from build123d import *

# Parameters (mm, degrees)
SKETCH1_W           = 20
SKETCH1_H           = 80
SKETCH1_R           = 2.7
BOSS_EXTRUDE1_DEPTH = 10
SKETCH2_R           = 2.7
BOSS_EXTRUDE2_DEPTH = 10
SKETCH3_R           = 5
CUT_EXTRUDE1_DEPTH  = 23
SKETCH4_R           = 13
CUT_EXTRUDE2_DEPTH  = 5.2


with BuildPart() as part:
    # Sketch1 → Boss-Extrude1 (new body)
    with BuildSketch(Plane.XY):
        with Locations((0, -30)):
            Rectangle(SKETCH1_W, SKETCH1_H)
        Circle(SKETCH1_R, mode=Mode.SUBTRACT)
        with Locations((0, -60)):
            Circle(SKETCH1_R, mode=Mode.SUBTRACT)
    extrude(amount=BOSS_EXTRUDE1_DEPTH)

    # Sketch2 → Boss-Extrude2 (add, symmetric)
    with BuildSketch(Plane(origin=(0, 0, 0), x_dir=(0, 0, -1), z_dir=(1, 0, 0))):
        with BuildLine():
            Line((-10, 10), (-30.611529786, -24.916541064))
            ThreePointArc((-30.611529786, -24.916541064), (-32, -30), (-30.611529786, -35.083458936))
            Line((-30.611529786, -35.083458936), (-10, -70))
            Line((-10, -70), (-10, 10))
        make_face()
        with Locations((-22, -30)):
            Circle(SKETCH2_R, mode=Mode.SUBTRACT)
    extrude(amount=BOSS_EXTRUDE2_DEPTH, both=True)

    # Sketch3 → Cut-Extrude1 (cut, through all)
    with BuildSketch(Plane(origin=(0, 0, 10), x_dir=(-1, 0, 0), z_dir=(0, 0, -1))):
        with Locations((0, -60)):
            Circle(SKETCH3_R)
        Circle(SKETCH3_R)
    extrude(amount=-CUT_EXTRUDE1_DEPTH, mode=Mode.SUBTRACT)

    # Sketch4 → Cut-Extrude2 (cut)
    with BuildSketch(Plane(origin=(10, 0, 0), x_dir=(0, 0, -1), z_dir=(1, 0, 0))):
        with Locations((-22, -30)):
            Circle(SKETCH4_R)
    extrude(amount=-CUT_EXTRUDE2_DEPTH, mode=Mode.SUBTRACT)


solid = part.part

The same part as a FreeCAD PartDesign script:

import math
import FreeCAD as App
import Part
import Sketcher

V = App.Vector


def add_polygon(sketch, points):
    """Adds a closed chain of lines whose ends are joined by coincident constraints."""
    first, n = sketch.GeometryCount, len(points)
    for a, b in zip(points, points[1:] + points[:1]):
        sketch.addGeometry(Part.LineSegment(App.Vector(*a, 0), App.Vector(*b, 0)), False)
    for i in range(n):
        sketch.addConstraint(Sketcher.Constraint("Coincident", first + i, 2, first + (i + 1) % n, 1))

doc = App.newDocument("Part")
body = doc.addObject("PartDesign::Body", "Body")

# Sketch on XY plane
sketch1 = doc.addObject("Sketcher::SketchObject", "Sketch")
body.addObject(sketch1)
sketch1.AttachmentSupport = (doc.XY_Plane, [""])
sketch1.MapMode = "FlatFace"
add_polygon(sketch1, [(-10, 10), (-10, -70), (10, -70), (10, 10)])  # lines 0-3
sketch1.addGeometry(Part.Circle(V(0, -60, 0), V(0, 0, 1), 2.7), False)  # 4
sketch1.addGeometry(Part.Circle(V(0, 0, 0), V(0, 0, 1), 2.7), False)  # 5
sketch1.addConstraint([
    Sketcher.Constraint("Vertical", 0),
    Sketcher.Constraint("Horizontal", 1),
    Sketcher.Constraint("Vertical", 2),
    Sketcher.Constraint("Horizontal", 3),
    Sketcher.Constraint("Coincident", 5, 3, -1, 1),
    Sketcher.Constraint("Equal", 4, 5),
    Sketcher.Constraint("PointOnObject", 4, 3, -2),
    Sketcher.Constraint("Diameter", 4, 5.4),
    Sketcher.Constraint("DistanceX", 1, 1, 1, 2, 20.0),
    Sketcher.Constraint("DistanceY", 0, 2, 0, 1, 80.0),
    Sketcher.Constraint("DistanceY", 4, 3, -1, 1, 60.0),
    Sketcher.Constraint("DistanceX", 0, 2, -1, 1, 10.0),
    Sketcher.Constraint("DistanceY", 0, 2, -1, 1, 70.0),
])
pad1 = doc.addObject("PartDesign::Pad", "Pad")
body.addObject(pad1)
pad1.Profile = sketch1
pad1.Length = 10

# Sketch on YZ plane
sketch2 = doc.addObject("Sketcher::SketchObject", "Sketch001")
body.addObject(sketch2)
sketch2.AttachmentSupport = (doc.YZ_Plane, [""])
sketch2.MapMode = "FlatFace"
sketch2.addGeometry([
    Part.LineSegment(V(10, 10, 0), V(-24.9, 30.6, 0)),  # 0
    Part.ArcOfCircle(Part.Circle(V(-30, 22, 0), V(0, 0, 1), 10), math.radians(59), math.radians(121)),  # 1
    Part.LineSegment(V(-35.1, 30.6, 0), V(-70, 10, 0)),  # 2
    Part.LineSegment(V(-70, 10, 0), V(10, 10, 0)),  # 3
    Part.Circle(V(-30, 22, 0), V(0, 0, 1), 2.7),  # 4
], False)
sketch2.addConstraint([
    Sketcher.Constraint("Tangent", 0, 2, 1, 1),
    Sketcher.Constraint("Tangent", 1, 2, 2, 1),
    Sketcher.Constraint("Coincident", 2, 2, 3, 1),
    Sketcher.Constraint("Coincident", 3, 2, 0, 1),
    Sketcher.Constraint("Horizontal", 3),
    Sketcher.Constraint("Coincident", 4, 3, 1, 3),
    Sketcher.Constraint("Horizontal", 0, 2, 1, 2),
    Sketcher.Constraint("Radius", 1, 10.0),
    Sketcher.Constraint("Diameter", 4, 5.4),
    Sketcher.Constraint("DistanceX", 3, 1, 3, 2, 80.0),
    Sketcher.Constraint("DistanceX", 1, 3, -1, 1, 30.0),
    Sketcher.Constraint("DistanceY", -1, 1, 1, 3, 22.0),
    Sketcher.Constraint("DistanceY", -1, 1, 2, 2, 10.0),
])
pad2 = doc.addObject("PartDesign::Pad", "Pad001")
body.addObject(pad2)
pad2.Profile = sketch2
pad2.Length = 20
pad2.Midplane = True

# Sketch on XY plane
sketch3 = doc.addObject("Sketcher::SketchObject", "Sketch002")
body.addObject(sketch3)
sketch3.AttachmentSupport = (doc.XY_Plane, [""])
sketch3.MapMode = "FlatFace"
sketch3.AttachmentOffset = App.Placement(V(0, 0, 10), App.Rotation())
sketch3.addGeometry([
    Part.Circle(V(0, -60, 0), V(0, 0, 1), 5),
    Part.Circle(V(0, 0, 0), V(0, 0, 1), 5),
], False)
sketch3.addConstraint([
    Sketcher.Constraint("Coincident", 1, 3, -1, 1),
    Sketcher.Constraint("Equal", 0, 1),
    Sketcher.Constraint("PointOnObject", 0, 3, -2),
    Sketcher.Constraint("Diameter", 0, 10.0),
    Sketcher.Constraint("DistanceY", 0, 3, -1, 1, 60.0),
])
pocket1 = doc.addObject("PartDesign::Pocket", "Pocket")
body.addObject(pocket1)
pocket1.Profile = sketch3
pocket1.Type = "ThroughAll"
pocket1.Reversed = True

# Sketch on YZ plane
sketch4 = doc.addObject("Sketcher::SketchObject", "Sketch003")
body.addObject(sketch4)
sketch4.AttachmentSupport = (doc.YZ_Plane, [""])
sketch4.MapMode = "FlatFace"
sketch4.AttachmentOffset = App.Placement(V(0, 0, 10), App.Rotation())
sketch4.addGeometry(Part.Circle(V(-30, 22, 0), V(0, 0, 1), 13), False)
sketch4.addConstraint([
    Sketcher.Constraint("Diameter", 0, 26.0),
    Sketcher.Constraint("DistanceX", 0, 3, -1, 1, 30.0),
    Sketcher.Constraint("DistanceY", -1, 1, 0, 3, 22.0),
])
pocket2 = doc.addObject("PartDesign::Pocket", "Pocket001")
body.addObject(pocket2)
pocket2.Profile = sketch4
pocket2.Length = 5.2

doc.recompute()
